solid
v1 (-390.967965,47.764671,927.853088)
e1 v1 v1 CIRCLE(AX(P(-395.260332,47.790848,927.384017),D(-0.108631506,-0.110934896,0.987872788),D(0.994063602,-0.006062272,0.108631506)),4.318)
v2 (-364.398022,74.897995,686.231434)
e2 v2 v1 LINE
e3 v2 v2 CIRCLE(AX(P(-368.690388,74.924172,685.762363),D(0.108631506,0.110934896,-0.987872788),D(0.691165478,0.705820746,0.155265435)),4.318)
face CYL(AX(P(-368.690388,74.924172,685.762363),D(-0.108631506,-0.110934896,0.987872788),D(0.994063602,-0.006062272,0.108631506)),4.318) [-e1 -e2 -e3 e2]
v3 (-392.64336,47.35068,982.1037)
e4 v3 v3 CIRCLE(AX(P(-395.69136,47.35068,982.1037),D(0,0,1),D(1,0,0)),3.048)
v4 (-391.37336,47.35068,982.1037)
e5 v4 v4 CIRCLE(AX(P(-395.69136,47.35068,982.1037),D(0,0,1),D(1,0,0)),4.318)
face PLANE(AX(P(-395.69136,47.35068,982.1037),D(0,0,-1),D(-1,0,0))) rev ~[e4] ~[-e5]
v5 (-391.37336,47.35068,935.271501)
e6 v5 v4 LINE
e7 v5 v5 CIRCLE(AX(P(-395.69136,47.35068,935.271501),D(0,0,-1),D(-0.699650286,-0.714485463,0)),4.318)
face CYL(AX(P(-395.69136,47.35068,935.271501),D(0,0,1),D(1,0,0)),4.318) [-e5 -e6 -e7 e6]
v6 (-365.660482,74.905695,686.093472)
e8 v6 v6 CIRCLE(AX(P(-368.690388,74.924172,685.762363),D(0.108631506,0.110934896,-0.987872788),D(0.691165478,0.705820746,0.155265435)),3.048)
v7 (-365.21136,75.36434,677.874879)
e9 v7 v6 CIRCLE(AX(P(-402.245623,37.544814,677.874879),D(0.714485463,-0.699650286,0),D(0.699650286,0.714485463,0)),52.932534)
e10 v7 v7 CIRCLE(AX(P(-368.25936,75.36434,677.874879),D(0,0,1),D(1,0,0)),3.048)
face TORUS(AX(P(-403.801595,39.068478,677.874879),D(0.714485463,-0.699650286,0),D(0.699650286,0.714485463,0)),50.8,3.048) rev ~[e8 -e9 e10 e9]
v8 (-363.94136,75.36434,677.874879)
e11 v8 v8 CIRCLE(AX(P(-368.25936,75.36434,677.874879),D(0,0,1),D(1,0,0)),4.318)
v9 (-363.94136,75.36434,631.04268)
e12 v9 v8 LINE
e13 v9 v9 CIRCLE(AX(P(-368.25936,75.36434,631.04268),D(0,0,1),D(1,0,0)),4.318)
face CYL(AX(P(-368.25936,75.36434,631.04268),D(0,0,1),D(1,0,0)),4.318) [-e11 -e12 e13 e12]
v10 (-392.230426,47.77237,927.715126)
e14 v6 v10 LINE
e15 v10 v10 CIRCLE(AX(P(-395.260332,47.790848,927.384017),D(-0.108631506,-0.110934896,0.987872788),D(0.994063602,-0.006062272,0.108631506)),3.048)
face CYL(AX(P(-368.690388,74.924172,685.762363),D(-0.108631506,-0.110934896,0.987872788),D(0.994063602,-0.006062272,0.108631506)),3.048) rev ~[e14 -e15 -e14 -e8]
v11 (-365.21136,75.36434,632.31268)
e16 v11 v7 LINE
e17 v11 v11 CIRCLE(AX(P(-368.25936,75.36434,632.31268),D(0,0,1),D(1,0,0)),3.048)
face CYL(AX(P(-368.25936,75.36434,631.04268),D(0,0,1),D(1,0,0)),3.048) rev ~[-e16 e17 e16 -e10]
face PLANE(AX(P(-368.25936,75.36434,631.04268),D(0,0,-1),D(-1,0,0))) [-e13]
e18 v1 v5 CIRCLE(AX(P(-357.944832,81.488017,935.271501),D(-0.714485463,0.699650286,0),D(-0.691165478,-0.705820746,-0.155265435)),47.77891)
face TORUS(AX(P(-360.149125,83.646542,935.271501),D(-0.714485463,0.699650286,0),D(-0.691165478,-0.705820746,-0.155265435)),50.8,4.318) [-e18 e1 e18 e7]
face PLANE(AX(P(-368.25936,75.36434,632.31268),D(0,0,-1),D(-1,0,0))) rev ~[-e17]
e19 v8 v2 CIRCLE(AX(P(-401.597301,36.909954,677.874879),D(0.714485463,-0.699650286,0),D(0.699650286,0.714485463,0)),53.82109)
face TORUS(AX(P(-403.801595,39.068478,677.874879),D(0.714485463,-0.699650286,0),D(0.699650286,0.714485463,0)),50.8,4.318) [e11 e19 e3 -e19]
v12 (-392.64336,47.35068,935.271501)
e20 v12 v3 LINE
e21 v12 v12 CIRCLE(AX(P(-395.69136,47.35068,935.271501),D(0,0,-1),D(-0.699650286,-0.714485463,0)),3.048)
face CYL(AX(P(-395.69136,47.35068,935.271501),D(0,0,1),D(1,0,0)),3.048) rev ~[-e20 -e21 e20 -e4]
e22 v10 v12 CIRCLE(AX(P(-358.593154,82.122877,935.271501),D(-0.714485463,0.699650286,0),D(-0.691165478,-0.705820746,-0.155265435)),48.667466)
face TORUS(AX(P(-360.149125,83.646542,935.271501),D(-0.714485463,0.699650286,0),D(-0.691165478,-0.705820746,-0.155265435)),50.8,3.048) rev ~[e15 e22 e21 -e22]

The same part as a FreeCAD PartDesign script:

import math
import FreeCAD as App
import Part
import Sketcher

V = App.Vector
Q = App.Units.Quantity


def faces_at(feature, points):
    """Names of the faces that lie closest to the given points."""
    faces = feature.Shape.Faces
    near = lambda p: min(range(len(faces)), key=lambda i: faces[i].distToShape(Part.Vertex(*p))[0])
    return sorted({f"Face{near(p) + 1}" for p in points})

doc = App.newDocument("Part")
params = doc.addObject("Spreadsheet::Sheet", "Params")
for row, (alias, value) in enumerate([
    ("sketch1_diameter", "0.34 in"),
    ("sketch2_radius", "2 in"),
    ("thickness_wall", "0.05 in"),
], start=1):
    params.set(f"A{row}", alias)
    params.set(f"B{row}", "=" + value)
    params.setAlias(f"B{row}", alias)

body = doc.addObject("PartDesign::Body", "Body")

sketch1 = body.newObject("Sketcher::SketchObject", "Sketch")
sketch1.AttachmentSupport = (doc.getObject("XY_Plane"), [""])
sketch1.MapMode = "FlatFace"
sketch1.AttachmentOffset = App.Placement(V(0, 0, 24.8442 * 25.4), App.Rotation())
sketch1.addGeometry(Part.Circle(V(-368.3, 75.4, 0), V(0, 0, 1), 4.3), False)
sketch1.addConstraint(Sketcher.Constraint("Diameter", 0, Q("0.34 in")))
sketch1.addConstraint(Sketcher.Constraint("DistanceX", 0, 3, -1, 1, Q("14.4984 in")))
sketch1.addConstraint(Sketcher.Constraint("DistanceY", -1, 1, 0, 3, Q("2.9671 in")))
sketch1.setExpression("Constraints[0]", "Params.sketch1_diameter")

sketch2 = body.newObject("Sketcher::SketchObject", "Sketch001")
sketch2.Placement = App.Placement(V(-225.666405, 220.980794, 0), App.Rotation(V(0.699650286, 0.714485463, 0), V(0, 0, 1), V(0.714485463, -0.699650286, 0), "ZXY"))
sketch2.addGeometry(Part.LineSegment(V(-204, 631, 0), V(-204, 678, 0)), False)
sketch2.addGeometry(Part.ArcOfCircle(Part.Circle(V(-255, 678, 0), V(0, 0, 1), 51), math.radians(0), math.radians(8.93)), False)
sketch2.addGeometry(Part.LineSegment(V(-204, 686, 0), V(-242, 927, 0)), False)
sketch2.addGeometry(Part.ArcOfCircle(Part.Circle(V(-192, 935, 0), V(0, 0, 1), 51), math.radians(180), math.radians(188.93)), False)
sketch2.addGeometry(Part.LineSegment(V(-243, 935, 0), V(-243, 982, 0)), False)
sketch2.addConstraint(Sketcher.Constraint("Tangent", 0, 2, 1, 1))
sketch2.addConstraint(Sketcher.Constraint("Tangent", 1, 2, 2, 1))
sketch2.addConstraint(Sketcher.Constraint("Tangent", 2, 2, 3, 2))
sketch2.addConstraint(Sketcher.Constraint("Tangent", 3, 1, 4, 1))
sketch2.addConstraint(Sketcher.Constraint("Vertical", 0))
sketch2.addConstraint(Sketcher.Constraint("Vertical", 4))
sketch2.addConstraint(Sketcher.Constraint("Equal", 1, 3))
sketch2.addConstraint(Sketcher.Constraint("Equal", 0, 4))
sketch2.addConstraint(Sketcher.Constraint("Radius", 1, Q("2 in")))
sketch2.addConstraint(Sketcher.Constraint("DistanceY", 0, 1, 0, 2, Q("46.832199 mm")))
sketch2.addConstraint(Sketcher.Constraint("DistanceY", -1, 1, 0, 1, Q("24.8442 in")))
sketch2.addConstraint(Sketcher.Constraint("DistanceY", -1, 1, 4, 2, Q("38.6655 in")))
sketch2.addConstraint(Sketcher.Constraint("DistanceX", 3, 3, -1, 1, Q("192.214201 mm")))
sketch2.addConstraint(Sketcher.Constraint("DistanceX", 1, 3, -1, 1, Q("254.606041 mm")))
sketch2.setExpression("Constraints[8]", "Params.sketch2_radius")
doc.recompute()

additivepipe = body.newObject("PartDesign::AdditivePipe", "AdditivePipe")
additivepipe.Profile = sketch1
additivepipe.Spine = (sketch2, ["Edge1", "Edge2", "Edge3", "Edge4", "Edge5"])
doc.recompute()

thickness = body.newObject("PartDesign::Thickness", "Thickness")
thickness.Base = (additivepipe, faces_at(additivepipe, [(-395.691, 47.351, 982.104)]))
thickness.setExpression("Value", "Params.thickness_wall")
thickness.Reversed = True
thickness.Join = "Arc"

doc.recompute()
